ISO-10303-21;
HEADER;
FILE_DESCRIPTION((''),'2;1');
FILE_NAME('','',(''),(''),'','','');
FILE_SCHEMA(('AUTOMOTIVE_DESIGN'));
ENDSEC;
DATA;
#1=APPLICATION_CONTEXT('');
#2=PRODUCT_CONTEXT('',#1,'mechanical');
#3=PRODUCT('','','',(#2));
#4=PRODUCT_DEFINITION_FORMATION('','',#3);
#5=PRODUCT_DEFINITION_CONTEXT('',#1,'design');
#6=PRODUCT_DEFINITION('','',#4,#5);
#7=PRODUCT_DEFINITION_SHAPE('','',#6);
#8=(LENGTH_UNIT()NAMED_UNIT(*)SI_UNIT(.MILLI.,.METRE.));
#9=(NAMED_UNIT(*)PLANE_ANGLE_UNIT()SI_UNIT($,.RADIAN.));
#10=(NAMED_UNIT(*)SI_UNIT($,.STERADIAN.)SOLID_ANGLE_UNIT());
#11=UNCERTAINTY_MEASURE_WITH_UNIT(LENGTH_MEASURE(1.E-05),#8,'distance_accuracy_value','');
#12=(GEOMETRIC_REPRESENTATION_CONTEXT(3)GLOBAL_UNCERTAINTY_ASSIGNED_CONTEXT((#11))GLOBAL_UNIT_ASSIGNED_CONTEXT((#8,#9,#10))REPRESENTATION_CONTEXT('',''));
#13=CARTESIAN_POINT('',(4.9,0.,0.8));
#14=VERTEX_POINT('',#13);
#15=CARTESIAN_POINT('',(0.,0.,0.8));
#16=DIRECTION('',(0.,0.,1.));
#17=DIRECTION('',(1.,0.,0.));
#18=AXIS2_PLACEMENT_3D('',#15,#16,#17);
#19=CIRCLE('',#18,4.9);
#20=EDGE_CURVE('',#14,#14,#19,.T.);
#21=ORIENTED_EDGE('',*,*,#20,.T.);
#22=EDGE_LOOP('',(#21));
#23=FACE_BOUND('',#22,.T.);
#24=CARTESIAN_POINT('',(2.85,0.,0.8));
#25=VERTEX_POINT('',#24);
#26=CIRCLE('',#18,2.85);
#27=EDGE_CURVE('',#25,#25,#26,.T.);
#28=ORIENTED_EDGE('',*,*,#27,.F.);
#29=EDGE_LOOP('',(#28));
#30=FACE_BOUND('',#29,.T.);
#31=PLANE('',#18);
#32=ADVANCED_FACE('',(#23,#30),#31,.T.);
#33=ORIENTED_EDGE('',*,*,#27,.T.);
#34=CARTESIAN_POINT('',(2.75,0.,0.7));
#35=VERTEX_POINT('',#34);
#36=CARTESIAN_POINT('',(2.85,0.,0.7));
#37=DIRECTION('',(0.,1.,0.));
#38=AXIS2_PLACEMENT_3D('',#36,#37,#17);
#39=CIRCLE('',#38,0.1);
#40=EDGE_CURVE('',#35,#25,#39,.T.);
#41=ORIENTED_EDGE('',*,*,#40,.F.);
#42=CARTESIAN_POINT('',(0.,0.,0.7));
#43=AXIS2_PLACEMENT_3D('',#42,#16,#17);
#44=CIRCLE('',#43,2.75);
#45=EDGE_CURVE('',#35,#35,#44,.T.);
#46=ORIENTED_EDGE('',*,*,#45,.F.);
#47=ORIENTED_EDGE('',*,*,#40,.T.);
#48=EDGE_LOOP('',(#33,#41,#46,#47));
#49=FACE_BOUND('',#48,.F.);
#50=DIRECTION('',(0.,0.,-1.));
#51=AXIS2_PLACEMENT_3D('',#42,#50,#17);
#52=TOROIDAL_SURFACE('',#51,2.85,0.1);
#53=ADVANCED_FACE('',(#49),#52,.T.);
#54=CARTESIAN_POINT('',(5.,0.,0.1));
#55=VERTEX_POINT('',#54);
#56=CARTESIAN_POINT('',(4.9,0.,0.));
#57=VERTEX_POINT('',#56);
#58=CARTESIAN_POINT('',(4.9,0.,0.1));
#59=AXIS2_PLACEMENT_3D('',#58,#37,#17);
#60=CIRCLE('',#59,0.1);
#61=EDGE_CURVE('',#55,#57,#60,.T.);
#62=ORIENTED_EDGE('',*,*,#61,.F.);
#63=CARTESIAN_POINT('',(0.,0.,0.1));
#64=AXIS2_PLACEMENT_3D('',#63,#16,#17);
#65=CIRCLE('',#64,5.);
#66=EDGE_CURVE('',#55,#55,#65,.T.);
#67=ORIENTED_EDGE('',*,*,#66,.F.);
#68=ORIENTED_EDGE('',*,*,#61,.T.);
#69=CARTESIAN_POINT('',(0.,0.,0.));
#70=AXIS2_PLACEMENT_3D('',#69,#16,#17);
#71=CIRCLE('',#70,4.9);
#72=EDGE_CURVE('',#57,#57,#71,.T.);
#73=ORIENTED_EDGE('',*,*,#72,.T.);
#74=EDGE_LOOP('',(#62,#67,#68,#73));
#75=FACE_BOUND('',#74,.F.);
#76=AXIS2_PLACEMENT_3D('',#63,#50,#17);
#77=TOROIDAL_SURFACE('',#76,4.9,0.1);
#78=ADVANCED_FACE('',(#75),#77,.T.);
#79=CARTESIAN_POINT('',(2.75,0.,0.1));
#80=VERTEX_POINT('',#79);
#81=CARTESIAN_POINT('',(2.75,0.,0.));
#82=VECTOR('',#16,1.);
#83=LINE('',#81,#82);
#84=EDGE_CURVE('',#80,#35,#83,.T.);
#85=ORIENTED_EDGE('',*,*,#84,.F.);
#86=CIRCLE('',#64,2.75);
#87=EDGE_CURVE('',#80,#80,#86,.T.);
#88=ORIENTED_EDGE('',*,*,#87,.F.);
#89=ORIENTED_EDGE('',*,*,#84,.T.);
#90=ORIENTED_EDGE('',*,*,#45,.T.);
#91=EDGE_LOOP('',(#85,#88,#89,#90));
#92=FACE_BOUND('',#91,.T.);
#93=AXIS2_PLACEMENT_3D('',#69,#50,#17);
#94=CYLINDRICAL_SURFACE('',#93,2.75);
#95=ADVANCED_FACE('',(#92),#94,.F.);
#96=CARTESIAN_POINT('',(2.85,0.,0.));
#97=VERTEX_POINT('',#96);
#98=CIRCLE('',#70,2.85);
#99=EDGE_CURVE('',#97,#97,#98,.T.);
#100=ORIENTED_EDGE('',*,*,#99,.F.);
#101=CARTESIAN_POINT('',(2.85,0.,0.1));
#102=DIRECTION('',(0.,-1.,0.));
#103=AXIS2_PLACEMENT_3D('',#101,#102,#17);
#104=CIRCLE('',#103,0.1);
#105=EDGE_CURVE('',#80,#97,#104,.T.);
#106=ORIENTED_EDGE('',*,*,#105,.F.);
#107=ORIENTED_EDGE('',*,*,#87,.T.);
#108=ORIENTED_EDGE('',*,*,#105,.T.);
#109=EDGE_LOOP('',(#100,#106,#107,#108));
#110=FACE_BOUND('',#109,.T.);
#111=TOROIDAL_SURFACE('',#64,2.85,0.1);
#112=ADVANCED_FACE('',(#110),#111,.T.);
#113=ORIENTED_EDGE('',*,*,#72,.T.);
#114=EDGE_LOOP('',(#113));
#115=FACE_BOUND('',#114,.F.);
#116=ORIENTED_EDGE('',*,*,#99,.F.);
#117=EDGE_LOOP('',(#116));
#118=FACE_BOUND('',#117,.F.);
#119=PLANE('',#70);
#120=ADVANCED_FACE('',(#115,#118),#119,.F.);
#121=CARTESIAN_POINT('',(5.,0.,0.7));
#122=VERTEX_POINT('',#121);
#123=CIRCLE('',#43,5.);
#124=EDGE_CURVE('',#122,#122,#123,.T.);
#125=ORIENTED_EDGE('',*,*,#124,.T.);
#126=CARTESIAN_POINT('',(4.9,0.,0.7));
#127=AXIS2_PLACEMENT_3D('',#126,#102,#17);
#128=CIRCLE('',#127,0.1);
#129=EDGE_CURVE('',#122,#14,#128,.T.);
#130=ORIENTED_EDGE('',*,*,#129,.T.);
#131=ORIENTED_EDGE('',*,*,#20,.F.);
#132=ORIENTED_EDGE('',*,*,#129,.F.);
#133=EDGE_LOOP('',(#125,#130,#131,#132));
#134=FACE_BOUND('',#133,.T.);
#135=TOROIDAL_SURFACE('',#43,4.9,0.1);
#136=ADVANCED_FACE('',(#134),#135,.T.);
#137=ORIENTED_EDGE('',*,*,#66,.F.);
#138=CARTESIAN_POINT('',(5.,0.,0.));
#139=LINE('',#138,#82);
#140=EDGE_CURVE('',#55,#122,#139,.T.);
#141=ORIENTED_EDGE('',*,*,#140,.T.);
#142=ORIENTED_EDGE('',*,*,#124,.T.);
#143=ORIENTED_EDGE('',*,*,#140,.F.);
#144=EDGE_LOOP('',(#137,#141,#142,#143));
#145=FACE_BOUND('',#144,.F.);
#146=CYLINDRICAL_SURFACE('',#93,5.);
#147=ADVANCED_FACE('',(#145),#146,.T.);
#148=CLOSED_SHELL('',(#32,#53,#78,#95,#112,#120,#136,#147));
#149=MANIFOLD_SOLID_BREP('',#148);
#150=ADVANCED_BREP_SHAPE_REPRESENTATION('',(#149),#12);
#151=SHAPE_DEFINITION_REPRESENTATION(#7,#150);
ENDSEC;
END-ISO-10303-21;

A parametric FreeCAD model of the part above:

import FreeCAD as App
import Part
import Sketcher
Q = App.Units.Quantity


def edges_at(feature, points):
    """Names of the edges that pass closest to the given points."""
    edges = feature.Shape.Edges
    near = lambda p: min(range(len(edges)), key=lambda i: edges[i].distToShape(Part.Vertex(*p))[0])
    return sorted({f"Edge{near(p) + 1}" for p in points})

doc = App.newDocument("Part")
body = doc.addObject("PartDesign::Body", "Body")

# Sketch on XY plane
sketch1 = body.newObject("Sketcher::SketchObject", "Sketch")
sketch1.AttachmentSupport = (doc.getObject("XY_Plane"), [""])
sketch1.MapMode = "FlatFace"
sketch1.addGeometry(Part.Circle(App.Vector(0, 0, 0), App.Vector(0, 0, 1), 5), False)
sketch1.addGeometry(Part.Circle(App.Vector(0, 0, 0), App.Vector(0, 0, 1), 2.8), False)
sketch1.addConstraint(Sketcher.Constraint("Coincident", 0, 3, -1, 1))
sketch1.addConstraint(Sketcher.Constraint("Coincident", 1, 3, -1, 1))
sketch1.addConstraint(Sketcher.Constraint("Diameter", 0, Q("10 mm")))
sketch1.addConstraint(Sketcher.Constraint("Diameter", 1, Q("5.5 mm")))
pad1 = body.newObject("PartDesign::Pad", "Pad")
pad1.Profile = sketch1
pad1.Length = 0.8
doc.recompute()

fillet = body.newObject("PartDesign::Fillet", "Fillet")
fillet.Base = (pad1, edges_at(pad1, [
    (-5, 0, 0.8),
    (-5, 0, 0),
    (-2.75, 0, 0.8),
    (-2.75, 0, 0),
]))
fillet.Radius = 0.1

doc.recompute()
